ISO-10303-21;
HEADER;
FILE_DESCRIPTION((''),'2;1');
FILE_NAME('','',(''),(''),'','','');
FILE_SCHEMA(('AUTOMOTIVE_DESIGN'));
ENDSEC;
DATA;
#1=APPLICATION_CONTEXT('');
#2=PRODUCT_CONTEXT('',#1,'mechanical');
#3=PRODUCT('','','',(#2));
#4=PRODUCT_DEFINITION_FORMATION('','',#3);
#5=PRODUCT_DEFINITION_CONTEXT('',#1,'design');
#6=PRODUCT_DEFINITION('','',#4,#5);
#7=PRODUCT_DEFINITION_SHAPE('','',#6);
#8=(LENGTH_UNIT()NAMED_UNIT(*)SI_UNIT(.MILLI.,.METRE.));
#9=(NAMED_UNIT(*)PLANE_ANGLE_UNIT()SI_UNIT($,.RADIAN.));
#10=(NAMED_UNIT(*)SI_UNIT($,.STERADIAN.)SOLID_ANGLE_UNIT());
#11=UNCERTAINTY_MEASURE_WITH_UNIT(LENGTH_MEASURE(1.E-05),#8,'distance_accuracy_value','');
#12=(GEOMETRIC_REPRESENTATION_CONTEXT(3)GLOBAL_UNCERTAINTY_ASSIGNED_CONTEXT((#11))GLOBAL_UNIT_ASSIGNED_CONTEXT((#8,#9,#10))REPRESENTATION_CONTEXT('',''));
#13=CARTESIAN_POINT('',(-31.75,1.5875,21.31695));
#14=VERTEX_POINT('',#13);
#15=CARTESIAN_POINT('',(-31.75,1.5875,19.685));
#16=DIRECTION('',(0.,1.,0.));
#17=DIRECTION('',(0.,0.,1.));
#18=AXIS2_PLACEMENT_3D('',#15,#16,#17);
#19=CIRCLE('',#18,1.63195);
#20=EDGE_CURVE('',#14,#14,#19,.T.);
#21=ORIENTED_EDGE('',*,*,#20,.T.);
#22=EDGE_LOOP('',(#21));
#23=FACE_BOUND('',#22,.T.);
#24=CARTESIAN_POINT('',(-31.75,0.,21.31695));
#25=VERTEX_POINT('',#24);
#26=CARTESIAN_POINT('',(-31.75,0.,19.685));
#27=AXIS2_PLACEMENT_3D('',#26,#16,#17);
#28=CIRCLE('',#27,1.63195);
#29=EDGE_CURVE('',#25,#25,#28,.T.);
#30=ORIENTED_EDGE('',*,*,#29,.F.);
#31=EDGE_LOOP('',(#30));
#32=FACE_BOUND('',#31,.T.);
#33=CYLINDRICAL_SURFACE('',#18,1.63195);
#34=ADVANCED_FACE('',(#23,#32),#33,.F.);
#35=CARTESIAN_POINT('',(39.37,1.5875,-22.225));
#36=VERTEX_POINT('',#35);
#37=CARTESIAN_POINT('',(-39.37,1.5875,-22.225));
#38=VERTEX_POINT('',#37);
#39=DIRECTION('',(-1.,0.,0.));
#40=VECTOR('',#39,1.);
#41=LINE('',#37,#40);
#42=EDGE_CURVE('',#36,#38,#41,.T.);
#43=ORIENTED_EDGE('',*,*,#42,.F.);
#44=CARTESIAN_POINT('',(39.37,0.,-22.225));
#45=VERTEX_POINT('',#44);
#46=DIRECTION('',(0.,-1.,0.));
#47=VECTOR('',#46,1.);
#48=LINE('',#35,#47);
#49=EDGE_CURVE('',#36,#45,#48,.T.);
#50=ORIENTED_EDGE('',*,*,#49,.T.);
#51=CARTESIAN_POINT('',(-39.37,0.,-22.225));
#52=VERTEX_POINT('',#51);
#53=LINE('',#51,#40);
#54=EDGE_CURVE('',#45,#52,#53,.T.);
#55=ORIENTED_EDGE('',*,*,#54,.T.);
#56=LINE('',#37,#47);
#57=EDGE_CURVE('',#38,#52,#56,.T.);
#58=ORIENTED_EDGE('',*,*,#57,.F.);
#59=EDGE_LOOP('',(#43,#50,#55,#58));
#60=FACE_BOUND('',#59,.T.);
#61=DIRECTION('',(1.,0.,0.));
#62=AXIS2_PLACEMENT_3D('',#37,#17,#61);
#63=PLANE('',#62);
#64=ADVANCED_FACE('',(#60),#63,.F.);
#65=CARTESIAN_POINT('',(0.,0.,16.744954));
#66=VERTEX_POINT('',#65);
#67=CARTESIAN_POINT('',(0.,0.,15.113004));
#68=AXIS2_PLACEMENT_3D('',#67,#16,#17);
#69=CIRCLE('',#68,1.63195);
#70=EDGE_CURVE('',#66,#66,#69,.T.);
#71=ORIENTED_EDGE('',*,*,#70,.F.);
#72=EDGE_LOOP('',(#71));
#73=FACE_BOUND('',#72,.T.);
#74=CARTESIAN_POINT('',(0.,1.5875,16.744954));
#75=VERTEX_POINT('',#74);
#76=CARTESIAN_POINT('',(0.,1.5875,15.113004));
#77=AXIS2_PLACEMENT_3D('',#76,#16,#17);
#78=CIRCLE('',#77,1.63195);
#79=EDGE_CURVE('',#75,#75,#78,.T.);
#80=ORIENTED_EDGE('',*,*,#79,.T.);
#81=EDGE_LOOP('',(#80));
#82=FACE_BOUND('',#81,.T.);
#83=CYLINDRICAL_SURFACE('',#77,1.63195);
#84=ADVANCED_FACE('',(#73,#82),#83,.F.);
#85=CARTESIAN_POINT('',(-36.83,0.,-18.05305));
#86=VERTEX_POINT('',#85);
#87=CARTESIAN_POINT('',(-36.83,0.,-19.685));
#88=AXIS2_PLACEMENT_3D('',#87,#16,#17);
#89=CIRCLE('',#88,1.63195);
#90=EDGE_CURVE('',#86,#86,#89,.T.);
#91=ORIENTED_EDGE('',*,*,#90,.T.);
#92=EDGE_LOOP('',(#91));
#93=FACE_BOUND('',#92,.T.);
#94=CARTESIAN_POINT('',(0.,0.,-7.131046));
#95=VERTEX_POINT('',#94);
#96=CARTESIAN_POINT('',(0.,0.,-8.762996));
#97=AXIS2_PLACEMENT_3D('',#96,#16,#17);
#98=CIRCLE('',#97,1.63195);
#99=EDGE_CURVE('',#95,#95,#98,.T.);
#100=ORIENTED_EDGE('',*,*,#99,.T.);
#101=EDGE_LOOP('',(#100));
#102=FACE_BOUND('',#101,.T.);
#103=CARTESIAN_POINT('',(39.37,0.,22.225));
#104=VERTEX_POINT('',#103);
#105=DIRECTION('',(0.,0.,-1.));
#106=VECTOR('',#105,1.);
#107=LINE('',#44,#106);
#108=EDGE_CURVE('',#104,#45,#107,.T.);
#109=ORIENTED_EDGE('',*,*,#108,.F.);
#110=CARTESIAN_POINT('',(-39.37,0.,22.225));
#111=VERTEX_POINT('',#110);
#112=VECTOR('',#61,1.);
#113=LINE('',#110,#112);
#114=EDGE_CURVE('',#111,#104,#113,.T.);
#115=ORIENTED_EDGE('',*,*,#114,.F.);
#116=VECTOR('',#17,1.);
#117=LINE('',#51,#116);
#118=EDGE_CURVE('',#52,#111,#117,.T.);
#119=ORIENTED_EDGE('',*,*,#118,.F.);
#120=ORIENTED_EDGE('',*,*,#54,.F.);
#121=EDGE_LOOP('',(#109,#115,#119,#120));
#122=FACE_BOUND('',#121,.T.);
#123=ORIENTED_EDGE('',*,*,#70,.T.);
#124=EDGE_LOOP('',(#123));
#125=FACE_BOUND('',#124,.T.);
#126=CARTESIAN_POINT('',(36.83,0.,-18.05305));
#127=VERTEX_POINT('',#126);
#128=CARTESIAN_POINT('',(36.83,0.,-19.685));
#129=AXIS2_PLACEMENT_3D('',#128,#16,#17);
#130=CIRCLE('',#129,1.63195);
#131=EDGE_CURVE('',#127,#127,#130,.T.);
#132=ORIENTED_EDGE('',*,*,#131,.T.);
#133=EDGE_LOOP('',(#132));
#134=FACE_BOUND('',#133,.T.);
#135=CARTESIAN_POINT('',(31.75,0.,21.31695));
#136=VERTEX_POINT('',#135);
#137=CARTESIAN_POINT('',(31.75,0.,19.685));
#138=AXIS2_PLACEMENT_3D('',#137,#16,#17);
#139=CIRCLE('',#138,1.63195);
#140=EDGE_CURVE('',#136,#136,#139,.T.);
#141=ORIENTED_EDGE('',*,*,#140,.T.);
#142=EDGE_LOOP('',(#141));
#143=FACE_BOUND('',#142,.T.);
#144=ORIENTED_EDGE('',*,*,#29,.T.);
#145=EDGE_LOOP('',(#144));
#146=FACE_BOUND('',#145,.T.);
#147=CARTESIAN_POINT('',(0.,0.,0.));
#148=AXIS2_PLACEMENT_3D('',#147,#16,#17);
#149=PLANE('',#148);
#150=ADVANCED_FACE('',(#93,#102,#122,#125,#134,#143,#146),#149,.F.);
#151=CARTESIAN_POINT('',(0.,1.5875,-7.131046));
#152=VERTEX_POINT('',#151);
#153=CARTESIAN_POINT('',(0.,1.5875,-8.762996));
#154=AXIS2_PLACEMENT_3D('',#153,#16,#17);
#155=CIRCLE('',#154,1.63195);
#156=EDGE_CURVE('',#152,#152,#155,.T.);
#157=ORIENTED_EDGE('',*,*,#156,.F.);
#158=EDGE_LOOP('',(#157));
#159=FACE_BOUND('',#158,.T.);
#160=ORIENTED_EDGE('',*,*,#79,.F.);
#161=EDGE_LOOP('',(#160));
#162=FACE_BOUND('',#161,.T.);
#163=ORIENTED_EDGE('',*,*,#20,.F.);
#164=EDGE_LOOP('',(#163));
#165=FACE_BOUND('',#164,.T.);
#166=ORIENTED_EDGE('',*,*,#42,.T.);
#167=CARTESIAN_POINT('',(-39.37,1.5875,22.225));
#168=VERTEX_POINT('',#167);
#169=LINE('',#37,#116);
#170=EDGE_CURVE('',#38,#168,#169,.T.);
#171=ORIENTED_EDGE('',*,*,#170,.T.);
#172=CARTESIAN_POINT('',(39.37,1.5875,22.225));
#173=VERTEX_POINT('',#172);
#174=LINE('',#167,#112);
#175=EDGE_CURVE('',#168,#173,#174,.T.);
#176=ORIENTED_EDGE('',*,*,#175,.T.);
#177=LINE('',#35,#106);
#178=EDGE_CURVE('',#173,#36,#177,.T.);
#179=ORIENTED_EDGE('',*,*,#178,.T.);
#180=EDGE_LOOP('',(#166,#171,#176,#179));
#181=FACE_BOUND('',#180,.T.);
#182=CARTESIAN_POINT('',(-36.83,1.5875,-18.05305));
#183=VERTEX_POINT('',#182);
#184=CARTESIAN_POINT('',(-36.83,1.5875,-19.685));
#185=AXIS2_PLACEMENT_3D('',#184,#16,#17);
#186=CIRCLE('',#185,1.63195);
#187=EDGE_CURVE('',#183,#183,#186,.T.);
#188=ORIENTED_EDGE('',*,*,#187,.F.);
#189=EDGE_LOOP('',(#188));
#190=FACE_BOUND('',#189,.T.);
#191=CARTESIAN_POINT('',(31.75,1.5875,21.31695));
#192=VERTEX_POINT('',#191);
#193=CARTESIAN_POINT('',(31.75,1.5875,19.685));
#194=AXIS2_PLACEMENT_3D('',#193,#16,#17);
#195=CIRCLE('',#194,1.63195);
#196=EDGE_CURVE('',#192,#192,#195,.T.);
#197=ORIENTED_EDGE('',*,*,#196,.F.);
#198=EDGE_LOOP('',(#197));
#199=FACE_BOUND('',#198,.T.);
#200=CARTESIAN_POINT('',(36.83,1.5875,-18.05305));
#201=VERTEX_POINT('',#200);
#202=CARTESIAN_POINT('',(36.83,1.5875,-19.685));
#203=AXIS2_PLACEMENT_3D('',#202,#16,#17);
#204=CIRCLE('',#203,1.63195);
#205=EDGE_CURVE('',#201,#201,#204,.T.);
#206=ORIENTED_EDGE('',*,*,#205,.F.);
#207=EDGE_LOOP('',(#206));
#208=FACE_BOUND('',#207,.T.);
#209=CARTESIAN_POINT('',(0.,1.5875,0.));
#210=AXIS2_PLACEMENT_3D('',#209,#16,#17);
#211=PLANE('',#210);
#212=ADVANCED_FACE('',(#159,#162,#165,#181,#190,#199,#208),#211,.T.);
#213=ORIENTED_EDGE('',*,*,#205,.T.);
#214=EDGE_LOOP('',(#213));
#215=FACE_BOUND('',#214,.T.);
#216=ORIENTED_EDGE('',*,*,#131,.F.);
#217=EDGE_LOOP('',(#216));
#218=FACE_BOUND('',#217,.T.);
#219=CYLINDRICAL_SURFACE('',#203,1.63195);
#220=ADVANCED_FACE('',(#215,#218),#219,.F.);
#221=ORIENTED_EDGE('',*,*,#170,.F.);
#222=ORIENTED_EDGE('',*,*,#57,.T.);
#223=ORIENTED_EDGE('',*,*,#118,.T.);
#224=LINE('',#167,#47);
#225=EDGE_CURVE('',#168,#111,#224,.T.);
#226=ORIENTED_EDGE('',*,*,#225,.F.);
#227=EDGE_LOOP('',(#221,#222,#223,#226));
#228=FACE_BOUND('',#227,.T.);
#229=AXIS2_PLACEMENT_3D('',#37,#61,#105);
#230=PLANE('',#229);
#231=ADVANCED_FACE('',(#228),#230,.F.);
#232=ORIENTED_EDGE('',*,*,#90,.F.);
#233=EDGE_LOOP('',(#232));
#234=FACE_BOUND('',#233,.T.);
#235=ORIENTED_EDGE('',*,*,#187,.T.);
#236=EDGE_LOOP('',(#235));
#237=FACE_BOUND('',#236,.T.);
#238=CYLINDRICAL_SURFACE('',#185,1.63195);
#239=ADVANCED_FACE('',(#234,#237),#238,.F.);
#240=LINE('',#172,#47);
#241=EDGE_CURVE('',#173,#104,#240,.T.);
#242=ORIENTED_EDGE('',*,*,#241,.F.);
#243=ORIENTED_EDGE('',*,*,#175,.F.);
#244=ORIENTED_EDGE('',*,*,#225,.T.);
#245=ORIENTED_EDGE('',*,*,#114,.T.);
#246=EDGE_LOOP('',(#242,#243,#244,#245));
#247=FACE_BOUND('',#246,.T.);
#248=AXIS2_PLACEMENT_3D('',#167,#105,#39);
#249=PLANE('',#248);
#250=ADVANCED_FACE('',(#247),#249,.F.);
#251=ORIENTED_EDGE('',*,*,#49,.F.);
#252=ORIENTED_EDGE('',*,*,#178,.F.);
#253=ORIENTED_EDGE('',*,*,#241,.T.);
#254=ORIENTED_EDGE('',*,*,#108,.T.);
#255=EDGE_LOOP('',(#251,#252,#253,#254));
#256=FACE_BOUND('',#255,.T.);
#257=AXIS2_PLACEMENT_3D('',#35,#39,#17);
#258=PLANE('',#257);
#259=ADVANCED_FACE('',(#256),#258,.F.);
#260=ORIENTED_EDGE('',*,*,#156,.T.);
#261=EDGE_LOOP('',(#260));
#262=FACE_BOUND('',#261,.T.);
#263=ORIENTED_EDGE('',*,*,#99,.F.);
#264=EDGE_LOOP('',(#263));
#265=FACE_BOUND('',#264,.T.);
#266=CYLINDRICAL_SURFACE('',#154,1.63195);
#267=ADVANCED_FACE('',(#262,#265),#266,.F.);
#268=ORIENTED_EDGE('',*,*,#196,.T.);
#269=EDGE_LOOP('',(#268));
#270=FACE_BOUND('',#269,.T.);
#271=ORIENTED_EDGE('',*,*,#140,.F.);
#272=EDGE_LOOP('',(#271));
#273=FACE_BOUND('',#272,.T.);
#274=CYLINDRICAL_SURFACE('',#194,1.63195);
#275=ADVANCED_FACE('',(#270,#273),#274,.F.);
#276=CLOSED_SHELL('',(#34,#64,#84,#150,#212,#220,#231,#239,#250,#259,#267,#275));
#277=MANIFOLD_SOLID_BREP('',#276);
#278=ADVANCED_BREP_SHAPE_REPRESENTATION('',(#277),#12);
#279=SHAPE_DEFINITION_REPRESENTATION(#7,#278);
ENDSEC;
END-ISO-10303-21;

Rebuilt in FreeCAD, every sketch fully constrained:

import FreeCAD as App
import Part
import Sketcher

V = App.Vector
Q = App.Units.Quantity

doc = App.newDocument("Part")
params = doc.addObject("Spreadsheet::Sheet", "Params")
for row, (alias, value) in enumerate([
    ("sketch1_width", "3.1 in"),
    ("sketch1_height", "1.75 in"),
    ("pad1_length", "0.0625 in"),
    ("hole_diameter", "0.1285 in"),
    ("hole2_diameter", "0.1285 in"),
], start=1):
    params.set(f"A{row}", alias)
    params.set(f"B{row}", "=" + value)
    params.setAlias(f"B{row}", alias)

body = doc.addObject("PartDesign::Body", "Body")

# Sketch on XZ plane
sketch1 = body.newObject("Sketcher::SketchObject", "Sketch")
sketch1.AttachmentSupport = (doc.getObject("XZ_Plane"), [""])
sketch1.MapMode = "FlatFace"
sketch1.addGeometry([
    Part.LineSegment(V(-39, -22, 0), V(-39, 22, 0)),
    Part.LineSegment(V(-39, 22, 0), V(39, 22, 0)),
    Part.LineSegment(V(39, 22, 0), V(39, -22, 0)),
    Part.LineSegment(V(39, -22, 0), V(-39, -22, 0)),
], False)
sketch1.addConstraint([
    Sketcher.Constraint("Coincident", 0, 2, 1, 1),
    Sketcher.Constraint("Coincident", 1, 2, 2, 1),
    Sketcher.Constraint("Coincident", 2, 2, 3, 1),
    Sketcher.Constraint("Coincident", 3, 2, 0, 1),
    Sketcher.Constraint("Vertical", 0),
    Sketcher.Constraint("Horizontal", 1),
    Sketcher.Constraint("Vertical", 2),
    Sketcher.Constraint("Horizontal", 3),
    Sketcher.Constraint("Symmetric", 0, 2, 2, 2, -1, 1),
    Sketcher.Constraint("DistanceX", 1, 1, 1, 2, Q("3.1 in")),
    Sketcher.Constraint("DistanceY", 0, 1, 0, 2, Q("1.75 in")),
])
sketch1.setExpression("Constraints[9]", "Params.sketch1_width")
sketch1.setExpression("Constraints[10]", "Params.sketch1_height")
pad1 = body.newObject("PartDesign::Pad", "Pad")
pad1.Profile = sketch1
pad1.setExpression("Length", "Params.pad1_length")
pad1.Reversed = True

# Sketch on XZ plane
sketch2 = body.newObject("Sketcher::SketchObject", "Sketch001")
sketch2.AttachmentSupport = (doc.getObject("XZ_Plane"), [""])
sketch2.MapMode = "FlatFace"
sketch2.AttachmentOffset = App.Placement(V(0, 0, -0.0625 * 25.4), App.Rotation())
sketch2.addGeometry([
    Part.Circle(V(-36.8, -19.7, 0), V(0, 0, 1), 1.6),
    Part.Circle(V(36.8, -19.7, 0), V(0, 0, 1), 1.6),
    Part.Circle(V(31.8, 19.7, 0), V(0, 0, 1), 1.6),
    Part.Circle(V(-31.8, 19.7, 0), V(0, 0, 1), 1.6),
], False)
sketch2.addConstraint([
    Sketcher.Constraint("Equal", 0, 1),
    Sketcher.Constraint("Equal", 1, 2),
    Sketcher.Constraint("Equal", 2, 3),
    Sketcher.Constraint("Symmetric", 0, 3, 1, 3, -2),
    Sketcher.Constraint("Symmetric", 2, 3, 3, 3, -2),
    Sketcher.Constraint("Diameter", 0, Q("0.1285 in")),
    Sketcher.Constraint("DistanceX", 0, 3, 1, 3, Q("2.9 in")),
    Sketcher.Constraint("DistanceX", 2, 3, 1, 3, Q("0.2 in")),
    Sketcher.Constraint("DistanceY", 1, 3, 2, 3, Q("1.55 in")),
    Sketcher.Constraint("DistanceY", 0, 3, -1, 1, Q("0.775 in")),
])
doc.recompute()
hole = body.newObject("PartDesign::Hole", "Hole")
hole.Profile = sketch2
hole.ThreadType = "None"
hole.setExpression("Diameter", "Params.hole_diameter")
hole.DepthType = "ThroughAll"
hole.Reversed = True

# Sketch on XZ plane
sketch3 = body.newObject("Sketcher::SketchObject", "Sketch002")
sketch3.AttachmentSupport = (doc.getObject("XZ_Plane"), [""])
sketch3.MapMode = "FlatFace"
sketch3.AttachmentOffset = App.Placement(V(0, 0, -0.0625 * 25.4), App.Rotation())
sketch3.addGeometry([
    Part.Circle(V(0, -8.8, 0), V(0, 0, 1), 1.6),
    Part.Circle(V(0, 15.1, 0), V(0, 0, 1), 1.6),
], False)
sketch3.addConstraint([
    Sketcher.Constraint("Equal", 0, 1),
    Sketcher.Constraint("PointOnObject", 0, 3, -2),
    Sketcher.Constraint("PointOnObject", 1, 3, -2),
    Sketcher.Constraint("Diameter", 0, Q("0.1285 in")),
    Sketcher.Constraint("DistanceY", 0, 3, 1, 3, Q("0.94 in")),
    Sketcher.Constraint("DistanceY", 0, 3, -1, 1, Q("0.3449998 in")),
])
doc.recompute()
hole2 = body.newObject("PartDesign::Hole", "Hole001")
hole2.Profile = sketch3
hole2.ThreadType = "None"
hole2.setExpression("Diameter", "Params.hole2_diameter")
hole2.DepthType = "ThroughAll"
hole2.Reversed = True

doc.recompute()
